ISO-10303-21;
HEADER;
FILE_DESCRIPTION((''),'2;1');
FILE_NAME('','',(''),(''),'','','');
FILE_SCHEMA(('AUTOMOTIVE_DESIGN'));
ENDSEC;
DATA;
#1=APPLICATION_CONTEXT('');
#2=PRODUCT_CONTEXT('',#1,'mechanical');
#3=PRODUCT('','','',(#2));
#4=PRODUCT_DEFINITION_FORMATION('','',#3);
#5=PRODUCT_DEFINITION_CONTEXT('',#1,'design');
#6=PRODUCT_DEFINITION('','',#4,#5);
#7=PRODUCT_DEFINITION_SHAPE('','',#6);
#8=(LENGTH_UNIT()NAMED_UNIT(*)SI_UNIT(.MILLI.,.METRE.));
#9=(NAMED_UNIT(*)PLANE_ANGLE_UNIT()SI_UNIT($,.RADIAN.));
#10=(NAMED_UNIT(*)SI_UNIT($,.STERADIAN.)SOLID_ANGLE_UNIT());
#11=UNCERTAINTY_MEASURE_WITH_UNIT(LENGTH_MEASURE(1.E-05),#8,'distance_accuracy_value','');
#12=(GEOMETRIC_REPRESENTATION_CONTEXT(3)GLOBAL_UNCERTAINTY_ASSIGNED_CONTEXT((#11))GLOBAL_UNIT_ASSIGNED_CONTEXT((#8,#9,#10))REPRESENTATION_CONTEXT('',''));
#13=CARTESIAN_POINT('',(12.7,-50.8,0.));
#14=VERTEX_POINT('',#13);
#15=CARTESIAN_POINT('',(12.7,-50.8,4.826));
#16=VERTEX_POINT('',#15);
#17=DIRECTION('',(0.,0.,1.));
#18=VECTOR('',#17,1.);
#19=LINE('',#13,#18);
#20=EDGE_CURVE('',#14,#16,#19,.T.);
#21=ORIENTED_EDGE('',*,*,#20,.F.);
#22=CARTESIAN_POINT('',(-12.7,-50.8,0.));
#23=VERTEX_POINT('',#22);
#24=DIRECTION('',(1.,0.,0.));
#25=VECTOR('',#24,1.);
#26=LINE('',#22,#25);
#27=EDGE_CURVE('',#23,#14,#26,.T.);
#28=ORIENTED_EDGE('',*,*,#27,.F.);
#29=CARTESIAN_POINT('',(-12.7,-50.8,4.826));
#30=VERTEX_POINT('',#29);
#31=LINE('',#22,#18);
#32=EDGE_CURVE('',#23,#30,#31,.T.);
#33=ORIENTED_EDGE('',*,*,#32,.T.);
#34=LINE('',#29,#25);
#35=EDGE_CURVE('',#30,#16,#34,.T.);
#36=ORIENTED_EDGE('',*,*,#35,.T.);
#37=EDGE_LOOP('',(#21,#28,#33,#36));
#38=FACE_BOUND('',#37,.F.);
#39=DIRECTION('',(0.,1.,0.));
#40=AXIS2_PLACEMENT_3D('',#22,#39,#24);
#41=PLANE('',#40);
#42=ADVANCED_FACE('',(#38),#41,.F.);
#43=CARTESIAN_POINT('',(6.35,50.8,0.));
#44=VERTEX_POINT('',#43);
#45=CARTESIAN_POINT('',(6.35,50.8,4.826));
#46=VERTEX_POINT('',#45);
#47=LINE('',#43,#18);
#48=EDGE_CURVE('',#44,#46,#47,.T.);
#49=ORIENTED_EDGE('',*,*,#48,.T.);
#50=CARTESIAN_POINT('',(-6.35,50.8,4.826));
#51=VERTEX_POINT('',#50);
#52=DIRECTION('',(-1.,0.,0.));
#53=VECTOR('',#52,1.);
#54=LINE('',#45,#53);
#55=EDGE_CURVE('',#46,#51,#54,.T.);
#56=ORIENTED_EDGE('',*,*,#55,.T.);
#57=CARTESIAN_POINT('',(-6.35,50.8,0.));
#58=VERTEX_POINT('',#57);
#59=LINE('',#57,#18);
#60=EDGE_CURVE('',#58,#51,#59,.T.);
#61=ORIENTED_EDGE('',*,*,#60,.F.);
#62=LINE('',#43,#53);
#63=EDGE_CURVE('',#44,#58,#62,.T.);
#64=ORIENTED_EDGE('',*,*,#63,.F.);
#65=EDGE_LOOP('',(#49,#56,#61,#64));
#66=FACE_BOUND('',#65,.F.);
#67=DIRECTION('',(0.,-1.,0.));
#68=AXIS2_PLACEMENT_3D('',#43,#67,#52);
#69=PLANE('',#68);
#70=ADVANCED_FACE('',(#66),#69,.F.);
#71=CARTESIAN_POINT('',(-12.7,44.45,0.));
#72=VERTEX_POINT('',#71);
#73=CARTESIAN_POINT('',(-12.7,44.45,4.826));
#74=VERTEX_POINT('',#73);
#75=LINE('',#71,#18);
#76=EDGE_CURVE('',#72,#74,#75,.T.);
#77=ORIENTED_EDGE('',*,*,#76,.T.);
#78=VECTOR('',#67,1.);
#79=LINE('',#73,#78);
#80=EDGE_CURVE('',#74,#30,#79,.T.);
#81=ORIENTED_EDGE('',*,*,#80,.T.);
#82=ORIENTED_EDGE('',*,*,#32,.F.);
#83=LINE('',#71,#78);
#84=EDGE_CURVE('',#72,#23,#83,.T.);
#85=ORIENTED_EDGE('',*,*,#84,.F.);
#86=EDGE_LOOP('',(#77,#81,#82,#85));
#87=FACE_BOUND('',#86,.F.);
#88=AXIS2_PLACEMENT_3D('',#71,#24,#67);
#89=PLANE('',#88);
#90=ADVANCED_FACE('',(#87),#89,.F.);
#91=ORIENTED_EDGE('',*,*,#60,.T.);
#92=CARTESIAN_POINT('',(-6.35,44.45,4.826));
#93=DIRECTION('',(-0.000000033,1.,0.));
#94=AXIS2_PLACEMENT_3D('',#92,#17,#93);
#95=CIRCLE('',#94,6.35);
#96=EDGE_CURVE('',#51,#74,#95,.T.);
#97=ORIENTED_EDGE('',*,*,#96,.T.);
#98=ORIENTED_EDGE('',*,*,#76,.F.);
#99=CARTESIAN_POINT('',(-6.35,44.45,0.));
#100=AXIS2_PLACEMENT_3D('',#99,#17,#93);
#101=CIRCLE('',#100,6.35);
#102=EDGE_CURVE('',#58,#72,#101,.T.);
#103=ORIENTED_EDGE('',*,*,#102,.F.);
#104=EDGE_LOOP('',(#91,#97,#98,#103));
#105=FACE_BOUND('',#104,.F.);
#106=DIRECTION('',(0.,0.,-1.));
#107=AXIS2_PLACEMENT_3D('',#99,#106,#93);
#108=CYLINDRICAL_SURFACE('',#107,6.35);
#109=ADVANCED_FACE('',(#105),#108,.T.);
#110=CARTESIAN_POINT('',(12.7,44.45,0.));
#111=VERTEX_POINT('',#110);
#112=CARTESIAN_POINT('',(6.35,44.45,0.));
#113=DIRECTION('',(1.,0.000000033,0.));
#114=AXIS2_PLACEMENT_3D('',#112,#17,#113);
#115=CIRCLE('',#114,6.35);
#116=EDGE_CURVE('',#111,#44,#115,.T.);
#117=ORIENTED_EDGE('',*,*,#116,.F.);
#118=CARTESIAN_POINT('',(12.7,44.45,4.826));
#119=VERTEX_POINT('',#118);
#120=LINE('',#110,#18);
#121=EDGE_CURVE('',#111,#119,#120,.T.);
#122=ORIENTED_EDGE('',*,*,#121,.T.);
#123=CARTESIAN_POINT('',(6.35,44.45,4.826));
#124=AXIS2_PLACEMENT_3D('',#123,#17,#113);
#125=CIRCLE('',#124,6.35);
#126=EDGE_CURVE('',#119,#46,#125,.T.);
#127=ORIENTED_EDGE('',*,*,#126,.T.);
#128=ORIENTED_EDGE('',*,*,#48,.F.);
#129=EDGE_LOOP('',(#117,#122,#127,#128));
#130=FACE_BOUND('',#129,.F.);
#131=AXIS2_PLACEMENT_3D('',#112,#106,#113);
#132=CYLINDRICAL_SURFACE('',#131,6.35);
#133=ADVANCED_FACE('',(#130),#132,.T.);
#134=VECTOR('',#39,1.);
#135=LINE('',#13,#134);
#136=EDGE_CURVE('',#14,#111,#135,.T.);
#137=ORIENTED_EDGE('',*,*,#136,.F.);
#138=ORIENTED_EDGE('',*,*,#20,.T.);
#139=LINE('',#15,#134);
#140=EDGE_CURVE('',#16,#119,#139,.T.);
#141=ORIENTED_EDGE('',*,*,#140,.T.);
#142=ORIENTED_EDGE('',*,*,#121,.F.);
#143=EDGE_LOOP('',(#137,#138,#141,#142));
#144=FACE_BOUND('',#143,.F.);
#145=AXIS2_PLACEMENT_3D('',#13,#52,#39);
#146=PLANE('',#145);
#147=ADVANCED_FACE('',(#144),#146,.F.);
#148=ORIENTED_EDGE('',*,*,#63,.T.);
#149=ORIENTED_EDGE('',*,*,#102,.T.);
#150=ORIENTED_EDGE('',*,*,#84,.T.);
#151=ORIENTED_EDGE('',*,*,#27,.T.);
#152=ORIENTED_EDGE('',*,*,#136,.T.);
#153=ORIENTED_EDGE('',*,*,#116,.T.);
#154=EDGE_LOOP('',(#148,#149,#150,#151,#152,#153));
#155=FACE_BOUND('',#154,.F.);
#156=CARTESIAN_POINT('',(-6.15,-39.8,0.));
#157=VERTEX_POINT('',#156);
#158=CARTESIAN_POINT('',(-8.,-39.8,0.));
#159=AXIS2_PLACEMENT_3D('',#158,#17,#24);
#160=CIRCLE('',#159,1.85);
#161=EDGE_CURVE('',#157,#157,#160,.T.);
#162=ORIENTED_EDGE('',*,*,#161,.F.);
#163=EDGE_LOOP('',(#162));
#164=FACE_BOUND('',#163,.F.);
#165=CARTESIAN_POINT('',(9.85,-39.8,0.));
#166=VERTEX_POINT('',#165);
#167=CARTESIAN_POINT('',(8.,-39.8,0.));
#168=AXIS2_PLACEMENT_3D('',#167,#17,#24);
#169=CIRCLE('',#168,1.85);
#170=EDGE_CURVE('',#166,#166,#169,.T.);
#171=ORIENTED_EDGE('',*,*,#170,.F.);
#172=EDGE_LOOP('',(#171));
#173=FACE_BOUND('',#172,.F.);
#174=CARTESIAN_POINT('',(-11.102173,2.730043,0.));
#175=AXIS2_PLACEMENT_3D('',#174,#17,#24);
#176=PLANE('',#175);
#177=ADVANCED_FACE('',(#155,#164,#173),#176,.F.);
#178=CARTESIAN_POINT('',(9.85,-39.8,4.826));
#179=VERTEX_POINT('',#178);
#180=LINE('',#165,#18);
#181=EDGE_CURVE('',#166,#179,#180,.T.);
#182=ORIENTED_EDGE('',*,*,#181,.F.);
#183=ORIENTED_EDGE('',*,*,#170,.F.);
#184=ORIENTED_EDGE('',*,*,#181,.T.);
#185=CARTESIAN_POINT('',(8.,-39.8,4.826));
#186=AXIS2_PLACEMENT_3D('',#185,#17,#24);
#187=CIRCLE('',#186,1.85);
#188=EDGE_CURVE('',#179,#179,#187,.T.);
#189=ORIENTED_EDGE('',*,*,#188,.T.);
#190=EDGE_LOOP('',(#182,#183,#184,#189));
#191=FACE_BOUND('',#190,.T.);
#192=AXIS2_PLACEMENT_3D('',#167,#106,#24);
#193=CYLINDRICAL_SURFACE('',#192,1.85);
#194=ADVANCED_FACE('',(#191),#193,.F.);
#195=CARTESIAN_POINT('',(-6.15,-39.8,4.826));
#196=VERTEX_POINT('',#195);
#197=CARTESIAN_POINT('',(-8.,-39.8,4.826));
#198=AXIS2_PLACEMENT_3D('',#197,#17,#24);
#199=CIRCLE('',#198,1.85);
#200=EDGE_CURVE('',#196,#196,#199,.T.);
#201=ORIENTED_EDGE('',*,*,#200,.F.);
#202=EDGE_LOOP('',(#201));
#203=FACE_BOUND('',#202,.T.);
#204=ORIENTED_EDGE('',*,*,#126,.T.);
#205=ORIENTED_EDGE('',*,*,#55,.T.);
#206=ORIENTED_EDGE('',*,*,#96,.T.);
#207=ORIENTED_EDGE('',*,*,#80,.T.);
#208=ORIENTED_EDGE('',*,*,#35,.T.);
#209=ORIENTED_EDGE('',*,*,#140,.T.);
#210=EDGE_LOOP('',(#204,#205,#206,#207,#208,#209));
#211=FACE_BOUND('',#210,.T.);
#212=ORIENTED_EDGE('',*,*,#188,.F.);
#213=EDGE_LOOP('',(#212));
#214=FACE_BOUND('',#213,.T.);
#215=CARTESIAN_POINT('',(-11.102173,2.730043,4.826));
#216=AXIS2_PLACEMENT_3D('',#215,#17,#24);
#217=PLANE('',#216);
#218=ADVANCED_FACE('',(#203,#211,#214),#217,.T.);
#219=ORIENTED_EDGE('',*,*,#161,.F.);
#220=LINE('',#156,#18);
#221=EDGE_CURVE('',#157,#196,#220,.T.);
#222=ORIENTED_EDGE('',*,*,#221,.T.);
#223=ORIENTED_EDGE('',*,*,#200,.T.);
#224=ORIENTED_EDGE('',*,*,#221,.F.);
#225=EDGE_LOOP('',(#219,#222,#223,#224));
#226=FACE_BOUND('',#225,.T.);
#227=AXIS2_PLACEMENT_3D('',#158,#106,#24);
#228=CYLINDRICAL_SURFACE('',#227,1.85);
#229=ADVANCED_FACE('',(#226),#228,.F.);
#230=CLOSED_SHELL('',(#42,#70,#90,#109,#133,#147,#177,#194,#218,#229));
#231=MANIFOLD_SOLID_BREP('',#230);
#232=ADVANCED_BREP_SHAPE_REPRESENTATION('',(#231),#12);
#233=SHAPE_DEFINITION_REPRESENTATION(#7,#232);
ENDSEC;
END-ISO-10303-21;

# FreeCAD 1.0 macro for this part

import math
import FreeCAD as App
import Part
import Sketcher

V = App.Vector
Q = App.Units.Quantity

doc = App.newDocument("Part")
params = doc.addObject("Spreadsheet::Sheet", "Params")
for row, (alias, value) in enumerate([
    ("sketch1_width", "1 in"),
    ("sketch1_radius", "0.25 in"),
    ("pad1_length", "0.19 in"),
], start=1):
    params.set(f"A{row}", alias)
    params.set(f"B{row}", "=" + value)
    params.setAlias(f"B{row}", alias)

body = doc.addObject("PartDesign::Body", "Body")

# Sketch on XY plane
sketch1 = doc.addObject("Sketcher::SketchObject", "Sketch")
body.addObject(sketch1)
sketch1.AttachmentSupport = (doc.XY_Plane, [""])
sketch1.MapMode = "FlatFace"
sketch1.addGeometry([
    Part.ArcOfCircle(Part.Circle(V(-6.3, 44.4, 0), V(0, 0, 1), 6.4), math.radians(90), math.radians(180)),  # 0
    Part.LineSegment(V(-12.7, 44.5, 0), V(-12.7, -50.8, 0)),  # 1
    Part.LineSegment(V(-12.7, -50.8, 0), V(12.7, -50.8, 0)),  # 2
    Part.LineSegment(V(12.7, -50.8, 0), V(12.7, 44.5, 0)),  # 3
    Part.ArcOfCircle(Part.Circle(V(6.3, 44.4, 0), V(0, 0, 1), 6.4), math.radians(0), math.radians(90)),  # 4
    Part.LineSegment(V(6.3, 50.8, 0), V(-6.3, 50.8, 0)),  # 5
    Part.Circle(V(-8, -39.8, 0), V(0, 0, 1), 1.9),  # 6
    Part.Circle(V(8, -39.8, 0), V(0, 0, 1), 1.9),  # 7
], False)
sketch1.addConstraint([
    Sketcher.Constraint("Tangent", 0, 2, 1, 1),
    Sketcher.Constraint("Coincident", 1, 2, 2, 1),
    Sketcher.Constraint("Coincident", 2, 2, 3, 1),
    Sketcher.Constraint("Tangent", 3, 2, 4, 1),
    Sketcher.Constraint("Tangent", 4, 2, 5, 1),
    Sketcher.Constraint("Tangent", 5, 2, 0, 1),
    Sketcher.Constraint("Vertical", 1),
    Sketcher.Constraint("Horizontal", 2),
    Sketcher.Constraint("Vertical", 3),
    Sketcher.Constraint("Horizontal", 5),
    Sketcher.Constraint("Equal", 0, 4),
    Sketcher.Constraint("Equal", 6, 7),
    Sketcher.Constraint("Symmetric", 6, 3, 7, 3, -2),
    Sketcher.Constraint("DistanceX", 2, 1, 2, 2, Q("1 in")),
    Sketcher.Constraint("Radius", 0, Q("0.25 in")),
    Sketcher.Constraint("DistanceY", 1, 2, -1, 1, Q("2 in")),
    Sketcher.Constraint("DistanceY", -1, 1, 4, 2, Q("2 in")),
    Sketcher.Constraint("DistanceX", 0, 2, -1, 1, Q("0.5 in")),
    Sketcher.Constraint("Diameter", 6, Q("3.7 mm")),
    Sketcher.Constraint("DistanceX", 6, 3, -1, 1, Q("8 mm")),
    Sketcher.Constraint("DistanceY", 6, 3, -1, 1, Q("39.8 mm")),
])
sketch1.setExpression("Constraints[13]", "Params.sketch1_width")
sketch1.setExpression("Constraints[14]", "Params.sketch1_radius")
pad1 = doc.addObject("PartDesign::Pad", "Pad")
body.addObject(pad1)
pad1.Profile = sketch1
pad1.setExpression("Length", "Params.pad1_length")

doc.recompute()
